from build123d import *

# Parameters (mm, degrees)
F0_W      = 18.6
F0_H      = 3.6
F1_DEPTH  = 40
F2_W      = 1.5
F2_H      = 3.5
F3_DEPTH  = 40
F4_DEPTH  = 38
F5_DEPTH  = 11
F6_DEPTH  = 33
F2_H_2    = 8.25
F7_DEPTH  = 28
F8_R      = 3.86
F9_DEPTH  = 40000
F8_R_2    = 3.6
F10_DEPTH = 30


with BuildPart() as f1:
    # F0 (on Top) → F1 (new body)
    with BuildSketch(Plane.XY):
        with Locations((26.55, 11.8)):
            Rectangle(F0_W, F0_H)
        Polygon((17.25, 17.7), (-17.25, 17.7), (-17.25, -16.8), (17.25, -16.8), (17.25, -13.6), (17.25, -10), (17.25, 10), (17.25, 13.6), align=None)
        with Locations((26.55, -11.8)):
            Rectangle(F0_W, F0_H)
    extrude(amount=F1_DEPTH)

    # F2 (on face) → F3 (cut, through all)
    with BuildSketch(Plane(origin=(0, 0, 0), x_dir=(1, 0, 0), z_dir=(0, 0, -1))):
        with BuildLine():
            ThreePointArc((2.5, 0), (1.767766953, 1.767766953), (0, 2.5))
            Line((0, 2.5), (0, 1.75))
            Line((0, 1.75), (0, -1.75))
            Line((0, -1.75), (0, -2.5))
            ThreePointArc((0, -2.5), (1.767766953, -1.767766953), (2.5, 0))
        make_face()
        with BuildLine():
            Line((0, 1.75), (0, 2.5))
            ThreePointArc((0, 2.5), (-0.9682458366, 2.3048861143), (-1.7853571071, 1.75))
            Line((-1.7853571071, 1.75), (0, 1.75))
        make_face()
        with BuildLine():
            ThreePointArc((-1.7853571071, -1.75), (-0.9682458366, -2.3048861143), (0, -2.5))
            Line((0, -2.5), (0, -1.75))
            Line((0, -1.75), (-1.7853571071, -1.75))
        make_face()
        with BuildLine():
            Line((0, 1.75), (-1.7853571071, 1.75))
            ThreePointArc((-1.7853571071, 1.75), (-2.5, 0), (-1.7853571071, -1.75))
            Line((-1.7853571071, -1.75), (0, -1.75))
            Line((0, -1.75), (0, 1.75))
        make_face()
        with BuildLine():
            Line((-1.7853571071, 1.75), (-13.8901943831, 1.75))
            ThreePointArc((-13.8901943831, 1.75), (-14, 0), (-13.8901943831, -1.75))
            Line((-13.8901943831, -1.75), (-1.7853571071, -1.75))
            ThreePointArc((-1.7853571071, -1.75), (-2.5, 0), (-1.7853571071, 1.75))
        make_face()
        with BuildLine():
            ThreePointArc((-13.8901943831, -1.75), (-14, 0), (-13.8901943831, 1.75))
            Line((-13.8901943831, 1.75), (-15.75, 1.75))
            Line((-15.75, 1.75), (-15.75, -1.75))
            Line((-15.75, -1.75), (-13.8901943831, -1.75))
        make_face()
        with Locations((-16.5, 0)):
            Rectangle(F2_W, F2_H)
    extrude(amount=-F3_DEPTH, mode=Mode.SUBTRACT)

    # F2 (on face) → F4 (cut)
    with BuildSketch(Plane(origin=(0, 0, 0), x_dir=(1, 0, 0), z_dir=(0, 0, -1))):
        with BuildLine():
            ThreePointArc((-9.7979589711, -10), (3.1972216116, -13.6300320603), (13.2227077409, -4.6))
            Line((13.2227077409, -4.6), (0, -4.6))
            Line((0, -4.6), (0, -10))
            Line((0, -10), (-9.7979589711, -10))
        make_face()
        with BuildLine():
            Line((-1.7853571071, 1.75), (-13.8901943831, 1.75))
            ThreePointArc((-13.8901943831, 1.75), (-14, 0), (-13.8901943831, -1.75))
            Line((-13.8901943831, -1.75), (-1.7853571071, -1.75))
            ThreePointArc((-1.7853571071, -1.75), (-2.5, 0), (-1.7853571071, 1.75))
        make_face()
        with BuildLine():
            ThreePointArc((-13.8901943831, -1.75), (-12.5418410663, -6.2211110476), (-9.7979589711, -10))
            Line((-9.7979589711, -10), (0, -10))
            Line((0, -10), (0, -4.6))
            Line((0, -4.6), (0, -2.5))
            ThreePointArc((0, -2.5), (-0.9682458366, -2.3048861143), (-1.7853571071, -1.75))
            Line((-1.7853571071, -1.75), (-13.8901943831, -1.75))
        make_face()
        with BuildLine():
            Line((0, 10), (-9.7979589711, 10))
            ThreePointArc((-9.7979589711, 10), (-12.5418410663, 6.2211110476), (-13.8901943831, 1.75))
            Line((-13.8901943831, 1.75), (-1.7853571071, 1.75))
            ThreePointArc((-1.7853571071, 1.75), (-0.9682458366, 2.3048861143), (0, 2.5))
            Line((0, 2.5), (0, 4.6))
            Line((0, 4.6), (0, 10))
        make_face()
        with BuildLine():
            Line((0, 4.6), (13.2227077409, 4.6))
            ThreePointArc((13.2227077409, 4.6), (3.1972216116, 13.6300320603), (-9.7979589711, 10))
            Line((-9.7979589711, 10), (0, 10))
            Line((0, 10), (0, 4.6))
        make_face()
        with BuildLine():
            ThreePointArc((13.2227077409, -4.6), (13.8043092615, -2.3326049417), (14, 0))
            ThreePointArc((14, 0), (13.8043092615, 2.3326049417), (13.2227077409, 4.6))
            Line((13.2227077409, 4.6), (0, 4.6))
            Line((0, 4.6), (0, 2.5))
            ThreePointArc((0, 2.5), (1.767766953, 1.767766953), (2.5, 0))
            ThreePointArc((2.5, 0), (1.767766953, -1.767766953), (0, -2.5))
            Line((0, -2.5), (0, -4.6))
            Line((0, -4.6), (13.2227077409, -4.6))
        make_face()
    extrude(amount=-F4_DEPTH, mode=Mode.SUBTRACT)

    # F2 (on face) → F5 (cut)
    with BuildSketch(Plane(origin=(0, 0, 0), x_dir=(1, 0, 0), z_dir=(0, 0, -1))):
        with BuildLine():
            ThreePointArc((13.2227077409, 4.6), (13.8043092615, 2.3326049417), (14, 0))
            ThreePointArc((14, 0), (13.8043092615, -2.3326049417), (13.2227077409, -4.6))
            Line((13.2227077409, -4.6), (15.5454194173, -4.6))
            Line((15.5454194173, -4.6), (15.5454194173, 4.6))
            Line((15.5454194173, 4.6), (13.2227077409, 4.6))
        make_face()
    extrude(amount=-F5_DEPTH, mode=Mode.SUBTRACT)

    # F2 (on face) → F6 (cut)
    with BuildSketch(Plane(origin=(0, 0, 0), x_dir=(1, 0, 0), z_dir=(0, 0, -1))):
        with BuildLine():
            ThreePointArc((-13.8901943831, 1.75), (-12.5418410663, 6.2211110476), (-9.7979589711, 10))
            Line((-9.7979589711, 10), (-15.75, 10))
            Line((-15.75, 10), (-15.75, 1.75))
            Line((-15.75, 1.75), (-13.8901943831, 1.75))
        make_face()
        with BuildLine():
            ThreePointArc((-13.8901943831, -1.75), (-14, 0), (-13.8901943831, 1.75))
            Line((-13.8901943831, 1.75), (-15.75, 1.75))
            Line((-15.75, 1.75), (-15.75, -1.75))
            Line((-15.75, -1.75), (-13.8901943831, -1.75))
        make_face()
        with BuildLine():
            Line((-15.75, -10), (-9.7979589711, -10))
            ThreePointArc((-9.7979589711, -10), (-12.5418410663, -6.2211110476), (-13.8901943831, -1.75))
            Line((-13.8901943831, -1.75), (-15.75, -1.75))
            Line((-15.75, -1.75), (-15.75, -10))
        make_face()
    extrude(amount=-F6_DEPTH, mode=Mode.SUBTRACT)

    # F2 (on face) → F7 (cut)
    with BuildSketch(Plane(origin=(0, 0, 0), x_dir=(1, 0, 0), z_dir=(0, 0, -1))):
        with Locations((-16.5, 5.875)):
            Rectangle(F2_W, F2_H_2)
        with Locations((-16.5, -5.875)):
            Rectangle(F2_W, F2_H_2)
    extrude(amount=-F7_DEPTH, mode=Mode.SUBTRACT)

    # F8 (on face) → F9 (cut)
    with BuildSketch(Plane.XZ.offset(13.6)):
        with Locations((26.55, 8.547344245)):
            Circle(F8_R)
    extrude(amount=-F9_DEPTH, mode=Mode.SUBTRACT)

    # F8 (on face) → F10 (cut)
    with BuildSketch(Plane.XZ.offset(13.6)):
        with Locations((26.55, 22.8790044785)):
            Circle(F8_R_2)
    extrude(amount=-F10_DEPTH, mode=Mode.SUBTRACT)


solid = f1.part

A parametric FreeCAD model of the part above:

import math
import FreeCAD as App
import Part
import Sketcher

V = App.Vector
Q = App.Units.Quantity

doc = App.newDocument("Part")
body = doc.addObject("PartDesign::Body", "Body")

sketch1 = body.newObject("Sketcher::SketchObject", "Sketch")
sketch1.AttachmentSupport = (doc.getObject("XY_Plane"), [""])
sketch1.MapMode = "FlatFace"
sketch1.addGeometry([
    Part.LineSegment(V(17.2, 10, 0), V(35.9, 10, 0)),
    Part.LineSegment(V(35.9, 10, 0), V(35.9, 13.6, 0)),
    Part.LineSegment(V(35.9, 13.6, 0), V(17.2, 13.6, 0)),
    Part.LineSegment(V(17.2, 13.6, 0), V(17.2, 17.7, 0)),
    Part.LineSegment(V(17.2, 17.7, 0), V(-17.2, 17.7, 0)),
    Part.LineSegment(V(-17.2, 17.7, 0), V(-17.2, -16.8, 0)),
    Part.LineSegment(V(-17.2, -16.8, 0), V(17.2, -16.8, 0)),
    Part.LineSegment(V(17.2, -16.8, 0), V(17.2, -13.6, 0)),
    Part.LineSegment(V(17.2, -13.6, 0), V(35.9, -13.6, 0)),
    Part.LineSegment(V(35.9, -13.6, 0), V(35.9, -10, 0)),
    Part.LineSegment(V(35.9, -10, 0), V(17.2, -10, 0)),
    Part.LineSegment(V(17.2, -10, 0), V(17.2, 10, 0)),
], False)
sketch1.addConstraint([
    Sketcher.Constraint("Coincident", 0, 2, 1, 1),
    Sketcher.Constraint("Coincident", 1, 2, 2, 1),
    Sketcher.Constraint("Coincident", 2, 2, 3, 1),
    Sketcher.Constraint("Coincident", 3, 2, 4, 1),
    Sketcher.Constraint("Coincident", 4, 2, 5, 1),
    Sketcher.Constraint("Coincident", 5, 2, 6, 1),
    Sketcher.Constraint("Coincident", 6, 2, 7, 1),
    Sketcher.Constraint("Coincident", 7, 2, 8, 1),
    Sketcher.Constraint("Coincident", 8, 2, 9, 1),
    Sketcher.Constraint("Coincident", 9, 2, 10, 1),
    Sketcher.Constraint("Coincident", 10, 2, 11, 1),
    Sketcher.Constraint("Coincident", 11, 2, 0, 1),
    Sketcher.Constraint("Horizontal", 0),
    Sketcher.Constraint("Vertical", 1),
    Sketcher.Constraint("Horizontal", 2),
    Sketcher.Constraint("Vertical", 3),
    Sketcher.Constraint("Horizontal", 4),
    Sketcher.Constraint("Vertical", 5),
    Sketcher.Constraint("Horizontal", 6),
    Sketcher.Constraint("Vertical", 7),
    Sketcher.Constraint("Horizontal", 8),
    Sketcher.Constraint("Vertical", 9),
    Sketcher.Constraint("Horizontal", 10),
    Sketcher.Constraint("Vertical", 11),
    Sketcher.Constraint("Symmetric", 2, 2, 7, 2, -1),
    Sketcher.Constraint("Symmetric", 0, 2, 9, 2, -1),
    Sketcher.Constraint("Vertical", 7, 2, 10, 2),
    Sketcher.Constraint("Equal", 6, 5),
    Sketcher.Constraint("DistanceY", 11, 1, 11, 2, Q("20 mm")),
    Sketcher.Constraint("DistanceX", 0, 1, 0, 2, Q("18.6 mm")),
    Sketcher.Constraint("DistanceX", 4, 2, 4, 1, Q("34.5 mm")),
    Sketcher.Constraint("DistanceY", 1, 1, 1, 2, Q("3.6 mm")),
    Sketcher.Constraint("DistanceY", 3, 1, 3, 2, Q("4.1 mm")),
    Sketcher.Constraint("DistanceX", -1, 1, 0, 2, Q("35.85 mm")),
])
pad1 = body.newObject("PartDesign::Pad", "Pad")
pad1.Profile = sketch1
pad1.Length = 40

sketch2 = body.newObject("Sketcher::SketchObject", "Sketch001")
sketch2.AttachmentSupport = (doc.getObject("XY_Plane"), [""])
sketch2.MapMode = "FlatFace"
sketch2.addGeometry([
    Part.ArcOfCircle(Part.Circle(V(0, 0, 0), V(0, 0, 1), 2.5), math.radians(-90), math.radians(0)),
    Part.ArcOfCircle(Part.Circle(V(0, 0, 0), V(0, 0, 1), 2.5), math.radians(-136), math.radians(-90)),
    Part.LineSegment(V(-1.8, -1.8, 0), V(-17.2, -1.8, 0)),
    Part.LineSegment(V(-17.2, -1.8, 0), V(-17.2, 1.8, 0)),
    Part.LineSegment(V(-17.2, 1.8, 0), V(-1.8, 1.8, 0)),
    Part.ArcOfCircle(Part.Circle(V(0, 0, 0), V(0, 0, 1), 2.5), math.radians(90), math.radians(136)),
    Part.ArcOfCircle(Part.Circle(V(0, 0, 0), V(0, 0, 1), 2.5), math.radians(0), math.radians(90)),
], False)
sketch2.addConstraint([
    Sketcher.Constraint("Tangent", 0, 1, 1, 2),
    Sketcher.Constraint("Coincident", 1, 1, 2, 1),
    Sketcher.Constraint("Coincident", 2, 2, 3, 1),
    Sketcher.Constraint("Coincident", 3, 2, 4, 1),
    Sketcher.Constraint("Coincident", 4, 2, 5, 2),
    Sketcher.Constraint("Tangent", 5, 1, 6, 2),
    Sketcher.Constraint("Tangent", 6, 1, 0, 2),
    Sketcher.Constraint("Horizontal", 2),
    Sketcher.Constraint("Vertical", 3),
    Sketcher.Constraint("Horizontal", 4),
    Sketcher.Constraint("Coincident", 0, 3, -1, 1),
    Sketcher.Constraint("Coincident", 5, 3, -1, 1),
    Sketcher.Constraint("Equal", 0, 1),
    Sketcher.Constraint("PointOnObject", 0, 1, -2),
    Sketcher.Constraint("PointOnObject", 5, 1, -2),
    Sketcher.Constraint("PointOnObject", 6, 1, -1),
    Sketcher.Constraint("Vertical", 1, 1, 4, 2),
    Sketcher.Constraint("Radius", 0, Q("2.5 mm")),
    Sketcher.Constraint("DistanceY", 3, 1, 3, 2, Q("3.5 mm")),
    Sketcher.Constraint("DistanceX", 2, 2, -1, 1, Q("17.25 mm")),
])
pocket1 = body.newObject("PartDesign::Pocket", "Pocket")
pocket1.Profile = sketch2
pocket1.Type = "ThroughAll"
pocket1.Reversed = True

sketch3 = body.newObject("Sketcher::SketchObject", "Sketch002")
sketch3.AttachmentSupport = (doc.getObject("XY_Plane"), [""])
sketch3.MapMode = "FlatFace"
sketch3.addGeometry([
    Part.ArcOfCircle(Part.Circle(V(0, 0, 0), V(0, 0, 1), 14), math.radians(19), math.radians(134)),
    Part.ArcOfCircle(Part.Circle(V(0, 0, 0), V(0, 0, 1), 14), math.radians(0), math.radians(19.18)),
    Part.ArcOfCircle(Part.Circle(V(0, 0, 0), V(0, 0, 1), 14), math.radians(-19.18), math.radians(0)),
    Part.ArcOfCircle(Part.Circle(V(0, 0, 0), V(0, 0, 1), 14), math.radians(-134), math.radians(-19)),
    Part.ArcOfCircle(Part.Circle(V(0, 0, 0), V(0, 0, 1), 14), math.radians(-173), math.radians(-134)),
    Part.ArcOfCircle(Part.Circle(V(0, 0, 0), V(0, 0, 1), 14), math.radians(172.82), math.radians(187.18)),
    Part.ArcOfCircle(Part.Circle(V(0, 0, 0), V(0, 0, 1), 14), math.radians(134), math.radians(173)),
    Part.ArcOfCircle(Part.Circle(V(0, 0, 0), V(0, 0, 1), 2.5), math.radians(90), math.radians(136)),
    Part.ArcOfCircle(Part.Circle(V(0, 0, 0), V(0, 0, 1), 2.5), math.radians(136), math.radians(224)),
    Part.ArcOfCircle(Part.Circle(V(0, 0, 0), V(0, 0, 1), 2.5), math.radians(-136), math.radians(-90)),
    Part.ArcOfCircle(Part.Circle(V(0, 0, 0), V(0, 0, 1), 2.5), math.radians(-90), math.radians(0)),
    Part.ArcOfCircle(Part.Circle(V(0, 0, 0), V(0, 0, 1), 2.5), math.radians(0), math.radians(90)),
], False)
sketch3.addConstraint([
    Sketcher.Constraint("Tangent", 0, 1, 1, 2),
    Sketcher.Constraint("Tangent", 1, 1, 2, 2),
    Sketcher.Constraint("Tangent", 2, 1, 3, 2),
    Sketcher.Constraint("Tangent", 3, 1, 4, 2),
    Sketcher.Constraint("Tangent", 4, 1, 5, 2),
    Sketcher.Constraint("Tangent", 5, 1, 6, 2),
    Sketcher.Constraint("Tangent", 6, 1, 0, 2),
    Sketcher.Constraint("Tangent", 7, 2, 8, 1),
    Sketcher.Constraint("Tangent", 8, 2, 9, 1),
    Sketcher.Constraint("Tangent", 9, 2, 10, 1),
    Sketcher.Constraint("Tangent", 10, 2, 11, 1),
    Sketcher.Constraint("Tangent", 11, 2, 7, 1),
    Sketcher.Constraint("Coincident", 0, 3, -1, 1),
    Sketcher.Constraint("Coincident", 2, 3, -1, 1),
    Sketcher.Constraint("Coincident", 4, 3, -1, 1),
    Sketcher.Constraint("Coincident", 7, 3, -1, 1),
    Sketcher.Constraint("Coincident", 9, 3, -1, 1),
    Sketcher.Constraint("PointOnObject", 1, 1, -1),
    Sketcher.Constraint("PointOnObject", 9, 2, -2),
    Sketcher.Constraint("PointOnObject", 10, 2, -1),
    Sketcher.Constraint("PointOnObject", 11, 2, -2),
    Sketcher.Constraint("Horizontal", 5, 1, 7, 2),
    Sketcher.Constraint("Horizontal", 4, 1, 8, 2),
    Sketcher.Constraint("Vertical", 0, 1, 2, 1),
    Sketcher.Constraint("Vertical", 4, 1, 5, 1),
    Sketcher.Constraint("Vertical", 3, 1, 6, 1),
    Sketcher.Constraint("Radius", 0, Q("14 mm")),
    Sketcher.Constraint("Radius", 7, Q("2.5 mm")),
    Sketcher.Constraint("DistanceY", 3, 1, -1, 1, Q("10 mm")),
    Sketcher.Constraint("DistanceY", -1, 1, 0, 1, Q("4.6 mm")),
    Sketcher.Constraint("DistanceY", 4, 1, 5, 1, Q("3.5 mm")),
])
pocket2 = body.newObject("PartDesign::Pocket", "Pocket001")
pocket2.Profile = sketch3
pocket2.Length = 38
pocket2.Reversed = True

sketch4 = body.newObject("Sketcher::SketchObject", "Sketch003")
sketch4.AttachmentSupport = (doc.getObject("XY_Plane"), [""])
sketch4.MapMode = "FlatFace"
sketch4.addGeometry([
    Part.ArcOfCircle(Part.Circle(V(0, 0, 0), V(0, 0, 1), 14), math.radians(-19.18), math.radians(0)),
    Part.ArcOfCircle(Part.Circle(V(0, 0, 0), V(0, 0, 1), 14), math.radians(0), math.radians(19.18)),
    Part.LineSegment(V(13.2, 4.6, 0), V(15.5, 4.6, 0)),
    Part.LineSegment(V(15.5, 4.6, 0), V(15.5, -4.6, 0)),
    Part.LineSegment(V(15.5, -4.6, 0), V(13.2, -4.6, 0)),
], False)
sketch4.addConstraint([
    Sketcher.Constraint("Tangent", 0, 2, 1, 1),
    Sketcher.Constraint("Coincident", 1, 2, 2, 1),
    Sketcher.Constraint("Coincident", 2, 2, 3, 1),
    Sketcher.Constraint("Coincident", 3, 2, 4, 1),
    Sketcher.Constraint("Coincident", 4, 2, 0, 1),
    Sketcher.Constraint("Horizontal", 2),
    Sketcher.Constraint("Vertical", 3),
    Sketcher.Constraint("Horizontal", 4),
    Sketcher.Constraint("Coincident", 0, 3, -1, 1),
    Sketcher.Constraint("Equal", 0, 1),
    Sketcher.Constraint("PointOnObject", 0, 2, -1),
    Sketcher.Constraint("Vertical", 1, 2, 4, 2),
    Sketcher.Constraint("Radius", 0, Q("14 mm")),
    Sketcher.Constraint("DistanceY", 3, 2, 3, 1, Q("9.2 mm")),
    Sketcher.Constraint("DistanceX", 2, 1, 2, 2, Q("2.322712 mm")),
])
pocket3 = body.newObject("PartDesign::Pocket", "Pocket002")
pocket3.Profile = sketch4
pocket3.Length = 11
pocket3.Reversed = True

sketch5 = body.newObject("Sketcher::SketchObject", "Sketch004")
sketch5.AttachmentSupport = (doc.getObject("XY_Plane"), [""])
sketch5.MapMode = "FlatFace"
sketch5.addGeometry([
    Part.ArcOfCircle(Part.Circle(V(0, 0, 0), V(0, 0, 1), 14), math.radians(-173), math.radians(-134)),
    Part.LineSegment(V(-9.8, -10, 0), V(-15.8, -10, 0)),
    Part.LineSegment(V(-15.8, -10, 0), V(-15.8, 10, 0)),
    Part.LineSegment(V(-15.8, 10, 0), V(-9.8, 10, 0)),
    Part.ArcOfCircle(Part.Circle(V(0, 0, 0), V(0, 0, 1), 14), math.radians(134), math.radians(173)),
    Part.ArcOfCircle(Part.Circle(V(0, 0, 0), V(0, 0, 1), 14), math.radians(172.82), math.radians(187.18)),
], False)
sketch5.addConstraint([
    Sketcher.Constraint("Coincident", 0, 2, 1, 1),
    Sketcher.Constraint("Coincident", 1, 2, 2, 1),
    Sketcher.Constraint("Coincident", 2, 2, 3, 1),
    Sketcher.Constraint("Coincident", 3, 2, 4, 1),
    Sketcher.Constraint("Tangent", 4, 2, 5, 1),
    Sketcher.Constraint("Tangent", 5, 2, 0, 1),
    Sketcher.Constraint("Horizontal", 1),
    Sketcher.Constraint("Vertical", 2),
    Sketcher.Constraint("Horizontal", 3),
    Sketcher.Constraint("Coincident", 0, 3, -1, 1),
    Sketcher.Constraint("Coincident", 4, 3, -1, 1),
    Sketcher.Constraint("Vertical", 0, 2, 3, 2),
    Sketcher.Constraint("Vertical", 4, 2, 5, 2),
    Sketcher.Constraint("Radius", 0, Q("14 mm")),
    Sketcher.Constraint("DistanceY", 2, 1, 2, 2, Q("20 mm")),
    Sketcher.Constraint("DistanceY", 5, 2, 4, 2, Q("3.5 mm")),
    Sketcher.Constraint("DistanceX", 1, 2, -1, 1, Q("15.75 mm")),
])
pocket4 = body.newObject("PartDesign::Pocket", "Pocket003")
pocket4.Profile = sketch5
pocket4.Length = 33
pocket4.Reversed = True

sketch6 = body.newObject("Sketcher::SketchObject", "Sketch005")
sketch6.AttachmentSupport = (doc.getObject("XY_Plane"), [""])
sketch6.MapMode = "FlatFace"
sketch6.addGeometry([
    Part.LineSegment(V(-17.2, -10, 0), V(-17.2, -1.8, 0)),
    Part.LineSegment(V(-17.2, -1.8, 0), V(-15.8, -1.8, 0)),
    Part.LineSegment(V(-15.8, -1.8, 0), V(-15.8, -10, 0)),
    Part.LineSegment(V(-15.8, -10, 0), V(-17.2, -10, 0)),
    Part.LineSegment(V(-17.2, 1.8, 0), V(-17.2, 10, 0)),
    Part.LineSegment(V(-17.2, 10, 0), V(-15.8, 10, 0)),
    Part.LineSegment(V(-15.8, 10, 0), V(-15.8, 1.8, 0)),
    Part.LineSegment(V(-15.8, 1.8, 0), V(-17.2, 1.8, 0)),
], False)
sketch6.addConstraint([
    Sketcher.Constraint("Coincident", 0, 2, 1, 1),
    Sketcher.Constraint("Coincident", 1, 2, 2, 1),
    Sketcher.Constraint("Coincident", 2, 2, 3, 1),
    Sketcher.Constraint("Coincident", 3, 2, 0, 1),
    Sketcher.Constraint("Coincident", 4, 2, 5, 1),
    Sketcher.Constraint("Coincident", 5, 2, 6, 1),
    Sketcher.Constraint("Coincident", 6, 2, 7, 1),
    Sketcher.Constraint("Coincident", 7, 2, 4, 1),
    Sketcher.Constraint("Vertical", 0),
    Sketcher.Constraint("Horizontal", 1),
    Sketcher.Constraint("Vertical", 2),
    Sketcher.Constraint("Horizontal", 3),
    Sketcher.Constraint("Vertical", 4),
    Sketcher.Constraint("Horizontal", 5),
    Sketcher.Constraint("Vertical", 6),
    Sketcher.Constraint("Horizontal", 7),
    Sketcher.Constraint("Symmetric", 3, 2, 4, 2, -1),
    Sketcher.Constraint("Symmetric", 1, 2, 6, 2, -1),
    Sketcher.Constraint("DistanceX", 1, 1, 1, 2, Q("1.5 mm")),
    Sketcher.Constraint("DistanceY", 2, 2, -1, 1, Q("10 mm")),
    Sketcher.Constraint("DistanceY", 0, 1, 0, 2, Q("8.25 mm")),
    Sketcher.Constraint("DistanceX", 0, 2, -1, 1, Q("17.25 mm")),
])
pocket5 = body.newObject("PartDesign::Pocket", "Pocket004")
pocket5.Profile = sketch6
pocket5.Length = 28
pocket5.Reversed = True

sketch7 = body.newObject("Sketcher::SketchObject", "Sketch006")
sketch7.AttachmentSupport = (doc.getObject("XZ_Plane"), [""])
sketch7.MapMode = "FlatFace"
sketch7.AttachmentOffset = App.Placement(V(0, 0, 13.6), App.Rotation())
sketch7.addGeometry(Part.Circle(V(26.6, 8.5, 0), V(0, 0, 1), 3.9), False)
sketch7.addConstraint([
    Sketcher.Constraint("Diameter", 0, Q("7.72 mm")),
    Sketcher.Constraint("DistanceX", -1, 1, 0, 3, Q("26.55 mm")),
    Sketcher.Constraint("DistanceY", -1, 1, 0, 3, Q("8.547344 mm")),
])
pocket6 = body.newObject("PartDesign::Pocket", "Pocket005")
pocket6.Profile = sketch7
pocket6.Length = 40000

sketch8 = body.newObject("Sketcher::SketchObject", "Sketch007")
sketch8.AttachmentSupport = (doc.getObject("XZ_Plane"), [""])
sketch8.MapMode = "FlatFace"
sketch8.AttachmentOffset = App.Placement(V(0, 0, 13.6), App.Rotation())
sketch8.addGeometry(Part.Circle(V(26.6, 22.9, 0), V(0, 0, 1), 3.6), False)
sketch8.addConstraint([
    Sketcher.Constraint("Diameter", 0, Q("7.2 mm")),
    Sketcher.Constraint("DistanceX", -1, 1, 0, 3, Q("26.55 mm")),
    Sketcher.Constraint("DistanceY", -1, 1, 0, 3, Q("22.879004 mm")),
])
pocket7 = body.newObject("PartDesign::Pocket", "Pocket006")
pocket7.Profile = sketch8
pocket7.Length = 30

doc.recompute()
